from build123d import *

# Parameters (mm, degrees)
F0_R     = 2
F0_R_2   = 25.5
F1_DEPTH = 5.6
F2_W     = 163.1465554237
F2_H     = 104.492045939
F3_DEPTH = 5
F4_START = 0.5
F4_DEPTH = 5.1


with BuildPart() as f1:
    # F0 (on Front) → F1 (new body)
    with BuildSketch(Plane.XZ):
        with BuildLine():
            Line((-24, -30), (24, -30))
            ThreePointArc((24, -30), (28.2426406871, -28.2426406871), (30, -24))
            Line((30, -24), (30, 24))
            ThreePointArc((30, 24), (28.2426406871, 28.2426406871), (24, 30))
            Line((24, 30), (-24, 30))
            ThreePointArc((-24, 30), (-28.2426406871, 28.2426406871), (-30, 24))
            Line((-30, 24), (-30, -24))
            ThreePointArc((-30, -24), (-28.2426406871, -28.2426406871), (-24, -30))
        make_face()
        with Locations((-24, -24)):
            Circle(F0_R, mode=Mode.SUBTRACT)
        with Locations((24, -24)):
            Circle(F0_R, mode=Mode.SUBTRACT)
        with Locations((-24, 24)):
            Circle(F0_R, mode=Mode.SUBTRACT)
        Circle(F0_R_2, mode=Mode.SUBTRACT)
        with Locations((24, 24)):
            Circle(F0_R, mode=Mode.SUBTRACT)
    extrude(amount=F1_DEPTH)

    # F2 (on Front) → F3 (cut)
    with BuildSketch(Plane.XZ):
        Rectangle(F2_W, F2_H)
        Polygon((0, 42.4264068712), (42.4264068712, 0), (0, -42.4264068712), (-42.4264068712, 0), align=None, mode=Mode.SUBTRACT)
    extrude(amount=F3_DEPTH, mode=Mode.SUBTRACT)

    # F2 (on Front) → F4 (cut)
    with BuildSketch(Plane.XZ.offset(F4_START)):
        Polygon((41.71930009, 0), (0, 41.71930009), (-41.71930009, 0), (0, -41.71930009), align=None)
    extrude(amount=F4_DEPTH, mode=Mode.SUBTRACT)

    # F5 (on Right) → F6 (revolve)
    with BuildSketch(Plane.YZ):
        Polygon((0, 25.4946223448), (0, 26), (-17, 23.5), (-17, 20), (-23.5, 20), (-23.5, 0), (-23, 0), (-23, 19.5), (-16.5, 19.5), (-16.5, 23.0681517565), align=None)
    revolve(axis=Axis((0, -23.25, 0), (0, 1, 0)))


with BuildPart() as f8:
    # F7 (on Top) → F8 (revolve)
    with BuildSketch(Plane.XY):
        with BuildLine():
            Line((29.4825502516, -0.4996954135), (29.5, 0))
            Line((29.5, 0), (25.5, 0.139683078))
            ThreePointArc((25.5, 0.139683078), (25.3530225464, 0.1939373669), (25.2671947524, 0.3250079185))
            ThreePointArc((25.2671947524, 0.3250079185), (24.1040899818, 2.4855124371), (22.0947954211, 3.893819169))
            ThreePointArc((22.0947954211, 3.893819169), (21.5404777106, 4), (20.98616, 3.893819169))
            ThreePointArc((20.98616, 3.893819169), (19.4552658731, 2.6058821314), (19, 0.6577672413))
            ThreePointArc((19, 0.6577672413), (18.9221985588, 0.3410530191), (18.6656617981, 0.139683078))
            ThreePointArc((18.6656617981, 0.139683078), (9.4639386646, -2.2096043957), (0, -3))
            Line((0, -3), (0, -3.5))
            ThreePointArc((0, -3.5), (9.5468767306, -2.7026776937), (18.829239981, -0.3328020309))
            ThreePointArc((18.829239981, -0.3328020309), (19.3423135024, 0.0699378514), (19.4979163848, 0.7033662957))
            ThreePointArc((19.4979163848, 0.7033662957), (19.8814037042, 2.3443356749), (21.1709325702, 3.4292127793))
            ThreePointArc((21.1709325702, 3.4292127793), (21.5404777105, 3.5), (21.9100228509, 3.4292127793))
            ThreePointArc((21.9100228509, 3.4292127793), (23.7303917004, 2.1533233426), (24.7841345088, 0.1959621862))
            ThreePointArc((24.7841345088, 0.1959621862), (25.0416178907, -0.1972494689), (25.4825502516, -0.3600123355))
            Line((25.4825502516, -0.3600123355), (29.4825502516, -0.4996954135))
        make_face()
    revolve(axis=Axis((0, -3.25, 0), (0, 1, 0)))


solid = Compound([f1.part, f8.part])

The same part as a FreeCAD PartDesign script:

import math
import FreeCAD as App
import Part
import Sketcher
Q = App.Units.Quantity

doc = App.newDocument("Part")
body = doc.addObject("PartDesign::Body", "Body")

# Sketch on XZ plane
sketch1 = body.newObject("Sketcher::SketchObject", "Sketch")
sketch1.AttachmentSupport = (doc.getObject("XZ_Plane"), [""])
sketch1.MapMode = "FlatFace"
sketch1.addGeometry(Part.LineSegment(App.Vector(-24, -30, 0), App.Vector(24, -30, 0)), False)
sketch1.addGeometry(Part.ArcOfCircle(Part.Circle(App.Vector(24, -24, 0), App.Vector(0, 0, 1), 6), math.radians(-90), math.radians(0)), False)
sketch1.addGeometry(Part.LineSegment(App.Vector(30, -24, 0), App.Vector(30, 24, 0)), False)
sketch1.addGeometry(Part.ArcOfCircle(Part.Circle(App.Vector(24, 24, 0), App.Vector(0, 0, 1), 6), math.radians(0), math.radians(90)), False)
sketch1.addGeometry(Part.LineSegment(App.Vector(24, 30, 0), App.Vector(-24, 30, 0)), False)
sketch1.addGeometry(Part.ArcOfCircle(Part.Circle(App.Vector(-24, 24, 0), App.Vector(0, 0, 1), 6), math.radians(90), math.radians(180)), False)
sketch1.addGeometry(Part.LineSegment(App.Vector(-30, 24, 0), App.Vector(-30, -24, 0)), False)
sketch1.addGeometry(Part.ArcOfCircle(Part.Circle(App.Vector(-24, -24, 0), App.Vector(0, 0, 1), 6), math.radians(180), math.radians(270)), False)
sketch1.addGeometry(Part.Circle(App.Vector(-24, -24, 0), App.Vector(0, 0, 1), 2), False)
sketch1.addGeometry(Part.Circle(App.Vector(24, -24, 0), App.Vector(0, 0, 1), 2), False)
sketch1.addGeometry(Part.Circle(App.Vector(-24, 24, 0), App.Vector(0, 0, 1), 2), False)
sketch1.addGeometry(Part.Circle(App.Vector(0, 0, 0), App.Vector(0, 0, 1), 25.5), False)
sketch1.addGeometry(Part.Circle(App.Vector(24, 24, 0), App.Vector(0, 0, 1), 2), False)
sketch1.addConstraint(Sketcher.Constraint("Tangent", 0, 2, 1, 1))
sketch1.addConstraint(Sketcher.Constraint("Tangent", 1, 2, 2, 1))
sketch1.addConstraint(Sketcher.Constraint("Tangent", 2, 2, 3, 1))
sketch1.addConstraint(Sketcher.Constraint("Tangent", 3, 2, 4, 1))
sketch1.addConstraint(Sketcher.Constraint("Tangent", 4, 2, 5, 1))
sketch1.addConstraint(Sketcher.Constraint("Tangent", 5, 2, 6, 1))
sketch1.addConstraint(Sketcher.Constraint("Tangent", 6, 2, 7, 1))
sketch1.addConstraint(Sketcher.Constraint("Tangent", 7, 2, 0, 1))
sketch1.addConstraint(Sketcher.Constraint("Horizontal", 0))
sketch1.addConstraint(Sketcher.Constraint("Vertical", 2))
sketch1.addConstraint(Sketcher.Constraint("Horizontal", 4))
sketch1.addConstraint(Sketcher.Constraint("Vertical", 6))
sketch1.addConstraint(Sketcher.Constraint("Coincident", 11, 3, -1, 1))
sketch1.addConstraint(Sketcher.Constraint("Coincident", 8, 3, 7, 3))
sketch1.addConstraint(Sketcher.Constraint("Coincident", 9, 3, 1, 3))
sketch1.addConstraint(Sketcher.Constraint("Coincident", 10, 3, 5, 3))
sketch1.addConstraint(Sketcher.Constraint("Coincident", 12, 3, 3, 3))
sketch1.addConstraint(Sketcher.Constraint("Equal", 1, 3))
sketch1.addConstraint(Sketcher.Constraint("Equal", 3, 5))
sketch1.addConstraint(Sketcher.Constraint("Equal", 5, 7))
sketch1.addConstraint(Sketcher.Constraint("Equal", 8, 9))
sketch1.addConstraint(Sketcher.Constraint("Equal", 9, 10))
sketch1.addConstraint(Sketcher.Constraint("Equal", 10, 12))
sketch1.addConstraint(Sketcher.Constraint("Symmetric", 1, 3, 5, 3, -1, 1))
sketch1.addConstraint(Sketcher.Constraint("Equal", 4, 2))
sketch1.addConstraint(Sketcher.Constraint("Diameter", 8, Q("4 mm")))
sketch1.addConstraint(Sketcher.Constraint("Diameter", 11, Q("51 mm")))
sketch1.addConstraint(Sketcher.Constraint("Radius", 1, Q("6 mm")))
sketch1.addConstraint(Sketcher.Constraint("DistanceX", 0, 1, 0, 2, Q("48 mm")))
pad1 = body.newObject("PartDesign::Pad", "Pad")
pad1.Profile = sketch1
pad1.Length = 5.6

# Sketch on XZ plane
sketch2 = body.newObject("Sketcher::SketchObject", "Sketch001")
sketch2.AttachmentSupport = (doc.getObject("XZ_Plane"), [""])
sketch2.MapMode = "FlatFace"
sketch2.addGeometry(Part.LineSegment(App.Vector(-81.573278, 52.246023, 0), App.Vector(-81.573278, -52.246023, 0)), False)
sketch2.addGeometry(Part.LineSegment(App.Vector(-81.573278, -52.246023, 0), App.Vector(81.573278, -52.246023, 0)), False)
sketch2.addGeometry(Part.LineSegment(App.Vector(81.573278, -52.246023, 0), App.Vector(81.573278, 52.246023, 0)), False)
sketch2.addGeometry(Part.LineSegment(App.Vector(81.573278, 52.246023, 0), App.Vector(-81.573278, 52.246023, 0)), False)
sketch2.addGeometry(Part.LineSegment(App.Vector(-42.426407, 0, 0), App.Vector(0, 42.426407, 0)), False)
sketch2.addGeometry(Part.LineSegment(App.Vector(0, 42.426407, 0), App.Vector(42.426407, 0, 0)), False)
sketch2.addGeometry(Part.LineSegment(App.Vector(42.426407, 0, 0), App.Vector(0, -42.426407, 0)), False)
sketch2.addGeometry(Part.LineSegment(App.Vector(0, -42.426407, 0), App.Vector(-42.426407, 0, 0)), False)
sketch2.addConstraint(Sketcher.Constraint("Coincident", 0, 2, 1, 1))
sketch2.addConstraint(Sketcher.Constraint("Coincident", 1, 2, 2, 1))
sketch2.addConstraint(Sketcher.Constraint("Coincident", 2, 2, 3, 1))
sketch2.addConstraint(Sketcher.Constraint("Coincident", 3, 2, 0, 1))
sketch2.addConstraint(Sketcher.Constraint("Coincident", 4, 2, 5, 1))
sketch2.addConstraint(Sketcher.Constraint("Coincident", 5, 2, 6, 1))
sketch2.addConstraint(Sketcher.Constraint("Coincident", 6, 2, 7, 1))
sketch2.addConstraint(Sketcher.Constraint("Coincident", 7, 2, 4, 1))
sketch2.addConstraint(Sketcher.Constraint("Vertical", 0))
sketch2.addConstraint(Sketcher.Constraint("Horizontal", 1))
sketch2.addConstraint(Sketcher.Constraint("Vertical", 2))
sketch2.addConstraint(Sketcher.Constraint("Horizontal", 3))
sketch2.addConstraint(Sketcher.Constraint("Symmetric", 0, 2, 2, 2, -1, 1))
sketch2.addConstraint(Sketcher.Constraint("Symmetric", 4, 2, 6, 2, -1, 1))
sketch2.addConstraint(Sketcher.Constraint("Symmetric", 5, 2, 7, 2, -1, 1))
sketch2.addConstraint(Sketcher.Constraint("PointOnObject", 4, 2, -2))
sketch2.addConstraint(Sketcher.Constraint("PointOnObject", 5, 2, -1))
sketch2.addConstraint(Sketcher.Constraint("Perpendicular", 4, 5))
sketch2.addConstraint(Sketcher.Constraint("Distance", 4, Q("60 mm")))
sketch2.addConstraint(Sketcher.Constraint("DistanceX", 1, 1, 1, 2, Q("163.146555 mm")))
sketch2.addConstraint(Sketcher.Constraint("DistanceY", 0, 2, 0, 1, Q("104.492046 mm")))
pocket1 = body.newObject("PartDesign::Pocket", "Pocket")
pocket1.Profile = sketch2
pocket1.Length = 5
pocket1.Reversed = True

# Sketch on XZ plane
sketch3 = body.newObject("Sketcher::SketchObject", "Sketch002")
sketch3.AttachmentSupport = (doc.getObject("XZ_Plane"), [""])
sketch3.MapMode = "FlatFace"
sketch3.AttachmentOffset = App.Placement(App.Vector(0, 0, 0.5), App.Rotation())
sketch3.addGeometry(Part.LineSegment(App.Vector(41.7193, 0, 0), App.Vector(0, 41.7193, 0)), False)
sketch3.addGeometry(Part.LineSegment(App.Vector(0, 41.7193, 0), App.Vector(-41.7193, 0, 0)), False)
sketch3.addGeometry(Part.LineSegment(App.Vector(-41.7193, 0, 0), App.Vector(0, -41.7193, 0)), False)
sketch3.addGeometry(Part.LineSegment(App.Vector(0, -41.7193, 0), App.Vector(41.7193, 0, 0)), False)
sketch3.addConstraint(Sketcher.Constraint("Coincident", 0, 2, 1, 1))
sketch3.addConstraint(Sketcher.Constraint("Coincident", 1, 2, 2, 1))
sketch3.addConstraint(Sketcher.Constraint("Coincident", 2, 2, 3, 1))
sketch3.addConstraint(Sketcher.Constraint("Coincident", 3, 2, 0, 1))
sketch3.addConstraint(Sketcher.Constraint("Symmetric", 0, 2, 2, 2, -1, 1))
sketch3.addConstraint(Sketcher.Constraint("Symmetric", 1, 2, 3, 2, -1, 1))
sketch3.addConstraint(Sketcher.Constraint("PointOnObject", 0, 2, -2))
sketch3.addConstraint(Sketcher.Constraint("PointOnObject", 1, 2, -1))
sketch3.addConstraint(Sketcher.Constraint("Perpendicular", 0, 1))
sketch3.addConstraint(Sketcher.Constraint("Distance", 0, Q("59 mm")))
pocket2 = body.newObject("PartDesign::Pocket", "Pocket001")
pocket2.Profile = sketch3
pocket2.Length = 5.1
pocket2.Reversed = True

# Sketch on YZ plane
sketch4 = body.newObject("Sketcher::SketchObject", "Sketch003")
sketch4.AttachmentSupport = (doc.getObject("YZ_Plane"), [""])
sketch4.MapMode = "FlatFace"
sketch4.addGeometry(Part.LineSegment(App.Vector(0, 25.494622, 0), App.Vector(0, 26, 0)), False)
sketch4.addGeometry(Part.LineSegment(App.Vector(0, 26, 0), App.Vector(-17, 23.5, 0)), False)
sketch4.addGeometry(Part.LineSegment(App.Vector(-17, 23.5, 0), App.Vector(-17, 20, 0)), False)
sketch4.addGeometry(Part.LineSegment(App.Vector(-17, 20, 0), App.Vector(-23.5, 20, 0)), False)
sketch4.addGeometry(Part.LineSegment(App.Vector(-23.5, 20, 0), App.Vector(-23.5, 0, 0)), False)
sketch4.addGeometry(Part.LineSegment(App.Vector(-23.5, 0, 0), App.Vector(-23, 0, 0)), False)
sketch4.addGeometry(Part.LineSegment(App.Vector(-23, 0, 0), App.Vector(-23, 19.5, 0)), False)
sketch4.addGeometry(Part.LineSegment(App.Vector(-23, 19.5, 0), App.Vector(-16.5, 19.5, 0)), False)
sketch4.addGeometry(Part.LineSegment(App.Vector(-16.5, 19.5, 0), App.Vector(-16.5, 23.068152, 0)), False)
sketch4.addGeometry(Part.LineSegment(App.Vector(-16.5, 23.068152, 0), App.Vector(0, 25.494622, 0)), False)
sketch4.addConstraint(Sketcher.Constraint("Coincident", 0, 2, 1, 1))
sketch4.addConstraint(Sketcher.Constraint("Coincident", 1, 2, 2, 1))
sketch4.addConstraint(Sketcher.Constraint("Coincident", 2, 2, 3, 1))
sketch4.addConstraint(Sketcher.Constraint("Coincident", 3, 2, 4, 1))
sketch4.addConstraint(Sketcher.Constraint("Coincident", 4, 2, 5, 1))
sketch4.addConstraint(Sketcher.Constraint("Coincident", 5, 2, 6, 1))
sketch4.addConstraint(Sketcher.Constraint("Coincident", 6, 2, 7, 1))
sketch4.addConstraint(Sketcher.Constraint("Coincident", 7, 2, 8, 1))
sketch4.addConstraint(Sketcher.Constraint("Coincident", 8, 2, 9, 1))
sketch4.addConstraint(Sketcher.Constraint("Coincident", 9, 2, 0, 1))
sketch4.addConstraint(Sketcher.Constraint("Vertical", 0))
sketch4.addConstraint(Sketcher.Constraint("Vertical", 2))
sketch4.addConstraint(Sketcher.Constraint("Horizontal", 3))
sketch4.addConstraint(Sketcher.Constraint("Vertical", 4))
sketch4.addConstraint(Sketcher.Constraint("Horizontal", 5))
sketch4.addConstraint(Sketcher.Constraint("Vertical", 6))
sketch4.addConstraint(Sketcher.Constraint("Horizontal", 7))
sketch4.addConstraint(Sketcher.Constraint("Vertical", 8))
sketch4.addConstraint(Sketcher.Constraint("PointOnObject", 0, 2, -2))
sketch4.addConstraint(Sketcher.Constraint("PointOnObject", 4, 2, -1))
sketch4.addConstraint(Sketcher.Constraint("Parallel", 1, 9))
sketch4.addConstraint(Sketcher.Constraint("Equal", 3, 7))
sketch4.addConstraint(Sketcher.Constraint("DistanceY", 4, 2, 4, 1, Q("20 mm")))
sketch4.addConstraint(Sketcher.Constraint("DistanceX", 3, 2, 3, 1, Q("6.5 mm")))
sketch4.addConstraint(Sketcher.Constraint("DistanceX", 5, 1, 5, 2, Q("0.5 mm")))
sketch4.addConstraint(Sketcher.Constraint("DistanceY", 2, 2, 2, 1, Q("3.5 mm")))
sketch4.addConstraint(Sketcher.Constraint("DistanceY", 6, 1, 6, 2, Q("19.5 mm")))
sketch4.addConstraint(Sketcher.Constraint("DistanceY", -1, 1, 0, 2, Q("26 mm")))
sketch4.addConstraint(Sketcher.Constraint("DistanceX", 1, 2, -1, 1, Q("17 mm")))
sketch4.addConstraint(Sketcher.Constraint("DistanceY", 8, 1, 8, 2, Q("3.568152 mm")))
revolution = body.newObject("PartDesign::Revolution", "Revolution")
revolution.Profile = sketch4
revolution.ReferenceAxis = (sketch4, ["H_Axis"])
revolution.Angle = 360
body2 = doc.addObject("PartDesign::Body", "Body001")

# Sketch on XY plane
sketch5 = body2.newObject("Sketcher::SketchObject", "Sketch004")
sketch5.AttachmentSupport = (doc.getObject("XY_Plane001"), [""])
sketch5.MapMode = "FlatFace"
sketch5.addGeometry(Part.LineSegment(App.Vector(29.48255, -0.499695, 0), App.Vector(29.5, 0, 0)), False)
sketch5.addGeometry(Part.LineSegment(App.Vector(29.5, 0, 0), App.Vector(25.5, 0.139683, 0)), False)
sketch5.addGeometry(Part.ArcOfCircle(Part.Circle(App.Vector(25.508725, 0.389531, 0), App.Vector(0, 0, 1), 0.25), math.radians(-165.043153), math.radians(-92)), False)
sketch5.addGeometry(Part.ArcOfCircle(Part.Circle(App.Vector(20.129671, -1.047441, 0), App.Vector(0, 0, 1), 5.317684), math.radians(14.956846), math.radians(68.312432)), False)
sketch5.addGeometry(Part.ArcOfCircle(Part.Circle(App.Vector(21.540478, 2.5, 0), App.Vector(0, 0, 1), 1.5), math.radians(68.312432), math.radians(111.687568)), False)
sketch5.addGeometry(Part.ArcOfCircle(Part.Circle(App.Vector(22.158107, 0.946986, 0), App.Vector(0, 0, 1), 3.171322), math.radians(111.687568), math.radians(185.232537)), False)
sketch5.addGeometry(Part.ArcOfCircle(Part.Circle(App.Vector(18.502084, 0.612168, 0), App.Vector(0, 0, 1), 0.5), math.radians(-70.903731), math.radians(5.232537)), False)
sketch5.addGeometry(Part.ArcOfCircle(Part.Circle(App.Vector(0, 54.054252, 0), App.Vector(0, 0, 1), 57.054252), math.radians(-90), math.radians(-70.903731)), False)
sketch5.addGeometry(Part.LineSegment(App.Vector(0, -3, 0), App.Vector(0, -3.5, 0)), False)
sketch5.addGeometry(Part.ArcOfCircle(Part.Circle(App.Vector(0, 54.054252, 0), App.Vector(0, 0, 1), 57.554252), math.radians(-90), math.radians(-70.903731)), False)
sketch5.addGeometry(Part.ArcOfCircle(Part.Circle(App.Vector(18.502084, 0.612168, 0), App.Vector(0, 0, 1), 1), math.radians(-70.903731), math.radians(5.232537)), False)
sketch5.addGeometry(Part.ArcOfCircle(Part.Circle(App.Vector(22.158107, 0.946986, 0), App.Vector(0, 0, 1), 2.671322), math.radians(111.687568), math.radians(185.232537)), False)
sketch5.addGeometry(Part.ArcOfCircle(Part.Circle(App.Vector(21.540478, 2.5, 0), App.Vector(0, 0, 1), 1), math.radians(68.312432), math.radians(111.687568)), False)
sketch5.addGeometry(Part.ArcOfCircle(Part.Circle(App.Vector(20.129671, -1.047441, 0), App.Vector(0, 0, 1), 4.817684), math.radians(14.956846), math.radians(68.312432)), False)
sketch5.addGeometry(Part.ArcOfCircle(Part.Circle(App.Vector(25.508725, 0.389531, 0), App.Vector(0, 0, 1), 0.75), math.radians(-165.043154), math.radians(-92)), False)
sketch5.addGeometry(Part.LineSegment(App.Vector(25.48255, -0.360012, 0), App.Vector(29.48255, -0.499695, 0)), False)
sketch5.addConstraint(Sketcher.Constraint("Coincident", 0, 2, 1, 1))
sketch5.addConstraint(Sketcher.Constraint("Tangent", 1, 2, 2, 2))
sketch5.addConstraint(Sketcher.Constraint("Tangent", 2, 1, 3, 1))
sketch5.addConstraint(Sketcher.Constraint("Tangent", 3, 2, 4, 1))
sketch5.addConstraint(Sketcher.Constraint("Tangent", 4, 2, 5, 1))
sketch5.addConstraint(Sketcher.Constraint("Tangent", 5, 2, 6, 2))
sketch5.addConstraint(Sketcher.Constraint("Tangent", 6, 1, 7, 2))
sketch5.addConstraint(Sketcher.Constraint("Coincident", 7, 1, 8, 1))
sketch5.addConstraint(Sketcher.Constraint("Coincident", 8, 2, 9, 1))
sketch5.addConstraint(Sketcher.Constraint("Tangent", 9, 2, 10, 1))
sketch5.addConstraint(Sketcher.Constraint("Tangent", 10, 2, 11, 2))
sketch5.addConstraint(Sketcher.Constraint("Tangent", 11, 1, 12, 2))
sketch5.addConstraint(Sketcher.Constraint("Tangent", 12, 1, 13, 2))
sketch5.addConstraint(Sketcher.Constraint("Tangent", 13, 1, 14, 1))
sketch5.addConstraint(Sketcher.Constraint("Tangent", 14, 2, 15, 1))
sketch5.addConstraint(Sketcher.Constraint("Coincident", 15, 2, 0, 1))
sketch5.addConstraint(Sketcher.Constraint("Vertical", 8))
sketch5.addConstraint(Sketcher.Constraint("Coincident", 9, 3, 7, 3))
sketch5.addConstraint(Sketcher.Constraint("Coincident", 10, 3, 6, 3))
sketch5.addConstraint(Sketcher.Constraint("Coincident", 11, 3, 5, 3))
sketch5.addConstraint(Sketcher.Constraint("Coincident", 12, 3, 4, 3))
sketch5.addConstraint(Sketcher.Constraint("Coincident", 13, 3, 3, 3))
sketch5.addConstraint(Sketcher.Constraint("Coincident", 14, 3, 2, 3))
sketch5.addConstraint(Sketcher.Constraint("Equal", 10, 12))
sketch5.addConstraint(Sketcher.Constraint("PointOnObject", 7, 3, -2))
sketch5.addConstraint(Sketcher.Constraint("PointOnObject", 0, 2, -1))
sketch5.addConstraint(Sketcher.Constraint("PointOnObject", 7, 1, -2))
sketch5.addConstraint(Sketcher.Constraint("Perpendicular", 0, 1))
sketch5.addConstraint(Sketcher.Constraint("Parallel", 1, 15))
sketch5.addConstraint(Sketcher.Constraint("Horizontal", 3, 2, 4, 2))
sketch5.addConstraint(Sketcher.Constraint("Horizontal", 1, 2, 6, 1))
sketch5.addConstraint(Sketcher.Constraint("Radius", 10, Q("1 mm")))
sketch5.addConstraint(Sketcher.Constraint("Radius", 4, Q("1.5 mm")))
sketch5.addConstraint(Sketcher.Constraint("Angle", 0, Q("88 deg")))
sketch5.addConstraint(Sketcher.Constraint("Radius", 2, Q("0.25 mm")))
sketch5.addConstraint(Sketcher.Constraint("DistanceX", -1, 1, 5, 2, Q("19 mm")))
sketch5.addConstraint(Sketcher.Constraint("DistanceY", 7, 1, -1, 1, Q("3 mm")))
sketch5.addConstraint(Sketcher.Constraint("DistanceX", 1, 2, 0, 2, Q("4 mm")))
sketch5.addConstraint(Sketcher.Constraint("DistanceY", -1, 1, 4, 3, Q("2.5 mm")))
sketch5.addConstraint(Sketcher.Constraint("DistanceX", -1, 1, 0, 2, Q("29.5 mm")))
sketch5.addConstraint(Sketcher.Constraint("Radius", 3, Q("5.317684 mm")))
sketch5.addConstraint(Sketcher.Constraint("Radius", 5, Q("3.171322 mm")))
revolution2 = body2.newObject("PartDesign::Revolution", "Revolution001")
revolution2.Profile = sketch5
revolution2.ReferenceAxis = (sketch5, ["V_Axis"])
revolution2.Angle = 360

doc.recompute()
